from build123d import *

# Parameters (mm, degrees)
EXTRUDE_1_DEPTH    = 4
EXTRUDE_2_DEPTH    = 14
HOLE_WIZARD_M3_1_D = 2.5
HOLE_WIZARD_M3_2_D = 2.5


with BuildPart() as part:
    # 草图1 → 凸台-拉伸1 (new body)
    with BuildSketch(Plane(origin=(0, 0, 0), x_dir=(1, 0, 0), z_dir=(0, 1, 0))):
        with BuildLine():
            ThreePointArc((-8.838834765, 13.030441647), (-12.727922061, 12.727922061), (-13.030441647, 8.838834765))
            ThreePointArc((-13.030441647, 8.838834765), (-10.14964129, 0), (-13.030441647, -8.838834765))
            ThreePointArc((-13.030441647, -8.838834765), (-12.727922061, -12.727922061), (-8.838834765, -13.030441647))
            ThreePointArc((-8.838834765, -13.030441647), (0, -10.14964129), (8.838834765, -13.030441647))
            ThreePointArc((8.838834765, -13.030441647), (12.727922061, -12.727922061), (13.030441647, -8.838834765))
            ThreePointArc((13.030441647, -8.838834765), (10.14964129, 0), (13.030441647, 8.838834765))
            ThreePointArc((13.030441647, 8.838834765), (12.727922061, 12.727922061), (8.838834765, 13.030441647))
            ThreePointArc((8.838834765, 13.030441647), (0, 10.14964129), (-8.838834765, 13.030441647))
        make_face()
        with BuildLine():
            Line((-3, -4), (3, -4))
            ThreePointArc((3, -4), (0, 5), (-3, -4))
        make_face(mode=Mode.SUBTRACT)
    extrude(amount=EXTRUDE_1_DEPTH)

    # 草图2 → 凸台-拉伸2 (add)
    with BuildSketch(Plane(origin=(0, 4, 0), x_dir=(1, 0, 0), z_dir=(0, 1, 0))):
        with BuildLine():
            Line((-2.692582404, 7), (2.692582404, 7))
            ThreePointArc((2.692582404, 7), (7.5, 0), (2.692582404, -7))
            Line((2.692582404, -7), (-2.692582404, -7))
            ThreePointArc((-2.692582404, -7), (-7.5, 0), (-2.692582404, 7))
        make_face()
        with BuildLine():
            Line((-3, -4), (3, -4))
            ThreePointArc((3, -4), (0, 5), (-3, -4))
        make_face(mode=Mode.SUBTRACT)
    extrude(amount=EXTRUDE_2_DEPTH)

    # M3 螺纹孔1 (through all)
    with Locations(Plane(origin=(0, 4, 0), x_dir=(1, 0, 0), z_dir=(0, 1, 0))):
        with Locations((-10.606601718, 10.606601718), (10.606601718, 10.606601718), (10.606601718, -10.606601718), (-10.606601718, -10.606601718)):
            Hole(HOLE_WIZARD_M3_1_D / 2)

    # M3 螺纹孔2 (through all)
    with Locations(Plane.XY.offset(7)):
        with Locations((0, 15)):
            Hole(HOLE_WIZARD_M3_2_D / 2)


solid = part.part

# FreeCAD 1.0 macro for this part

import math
import FreeCAD as App
import Part
import Sketcher
from FreeCAD import Vector

doc = App.newDocument("Part")
params = doc.addObject("Spreadsheet::Sheet", "Params")
for row, (alias, value) in enumerate([
    ("sketch1_radius", "3 mm"),
    ("sketch1_radius2", "15 mm"),
    ("sketch1_radius3", "5 mm"),
    ("sketch1_width", "6 mm"),
    ("pad1_length", "4 mm"),
    ("sketch2_radius", "5 mm"),
    ("sketch2_radius2", "7.5 mm"),
    ("sketch2_width", "6 mm"),
    ("pad2_length", "14 mm"),
    ("sketch3_diameter", "2.5 mm"),
    ("hole_diameter", "2.5 mm"),
    ("sketch4_diameter", "2.5 mm"),
    ("hole2_diameter", "2.5 mm"),
], start=1):
    params.set(f"A{row}", alias)
    params.set(f"B{row}", "=" + value)
    params.setAlias(f"B{row}", alias)

body = doc.addObject("PartDesign::Body", "Body")

sketch1 = body.newObject("Sketcher::SketchObject", "Sketch")
sketch1.AttachmentSupport = (doc.getObject("XZ_Plane"), [""])
sketch1.MapMode = "FlatFace"
sketch1.addGeometry([
    Part.ArcOfCircle(Part.Circle(Vector(-10.606602, -10.606602, 0), Vector(0, 0, 1), 3), math.radians(143.895795), math.radians(306.104205)),
    Part.ArcOfCircle(Part.Circle(Vector(-25.149641, 0, 0), Vector(0, 0, 1), 15), math.radians(-36.104205), math.radians(36.104205)),
    Part.ArcOfCircle(Part.Circle(Vector(-10.606602, 10.606602, 0), Vector(0, 0, 1), 3), math.radians(53.895795), math.radians(216.104205)),
    Part.ArcOfCircle(Part.Circle(Vector(0, 25.149641, 0), Vector(0, 0, 1), 15), math.radians(-126.104205), math.radians(-53.895795)),
    Part.ArcOfCircle(Part.Circle(Vector(10.606602, 10.606602, 0), Vector(0, 0, 1), 3), math.radians(-36.104205), math.radians(126.104205)),
    Part.ArcOfCircle(Part.Circle(Vector(25.149641, 0, 0), Vector(0, 0, 1), 15), math.radians(143.895795), math.radians(216.104205)),
    Part.ArcOfCircle(Part.Circle(Vector(10.606602, -10.606602, 0), Vector(0, 0, 1), 3), math.radians(-126.104205), math.radians(36.104205)),
    Part.ArcOfCircle(Part.Circle(Vector(0, -25.149641, 0), Vector(0, 0, 1), 15), math.radians(53.895795), math.radians(126.104205)),
    Part.LineSegment(Vector(3, 4, 0), Vector(-3, 4, 0)),
    Part.ArcOfCircle(Part.Circle(Vector(0, 0, 0), Vector(0, 0, 1), 5), math.radians(126.869898), math.radians(413.130102)),
], False)
sketch1.addConstraint([
    Sketcher.Constraint("Tangent", 0, 1, 1, 1),
    Sketcher.Constraint("Tangent", 1, 2, 2, 2),
    Sketcher.Constraint("Tangent", 2, 1, 3, 1),
    Sketcher.Constraint("Tangent", 3, 2, 4, 2),
    Sketcher.Constraint("Tangent", 4, 1, 5, 1),
    Sketcher.Constraint("Tangent", 5, 2, 6, 2),
    Sketcher.Constraint("Tangent", 6, 1, 7, 1),
    Sketcher.Constraint("Tangent", 7, 2, 0, 2),
    Sketcher.Constraint("Coincident", 8, 1, 9, 2),
    Sketcher.Constraint("Coincident", 9, 1, 8, 2),
    Sketcher.Constraint("Horizontal", 8),
    Sketcher.Constraint("Coincident", 9, 3, -1, 1),
    Sketcher.Constraint("Equal", 0, 2),
    Sketcher.Constraint("Equal", 1, 3),
    Sketcher.Constraint("Equal", 2, 4),
    Sketcher.Constraint("Equal", 3, 5),
    Sketcher.Constraint("Equal", 4, 6),
    Sketcher.Constraint("Equal", 5, 7),
    Sketcher.Constraint("Symmetric", 0, 3, 4, 3, -1, 1),
    Sketcher.Constraint("Symmetric", 2, 3, 6, 3, -1, 1),
    Sketcher.Constraint("Symmetric", 2, 3, 4, 3, -2),
    Sketcher.Constraint("Radius", 0, 3.0),
    Sketcher.Constraint("Radius", 1, 15.0),
    Sketcher.Constraint("Radius", 9, 5.0),
    Sketcher.Constraint("DistanceX", 8, 2, 8, 1, 6.0),
    Sketcher.Constraint("DistanceX", 0, 3, -1, 1, 10.606602),
    Sketcher.Constraint("DistanceY", 0, 3, -1, 1, 10.606602),
])
sketch1.setExpression("Constraints[21]", "Params.sketch1_radius")
sketch1.setExpression("Constraints[22]", "Params.sketch1_radius2")
sketch1.setExpression("Constraints[23]", "Params.sketch1_radius3")
sketch1.setExpression("Constraints[24]", "Params.sketch1_width")
pad1 = body.newObject("PartDesign::Pad", "Pad")
pad1.Profile = sketch1
pad1.setExpression("Length", "Params.pad1_length")
pad1.Reversed = True

sketch2 = body.newObject("Sketcher::SketchObject", "Sketch001")
sketch2.AttachmentSupport = (doc.getObject("XZ_Plane"), [""])
sketch2.MapMode = "FlatFace"
sketch2.AttachmentOffset = App.Placement(Vector(0, 0, -4), App.Rotation())
sketch2.addGeometry([
    Part.LineSegment(Vector(2.692582, -7, 0), Vector(-2.692582, -7, 0)),
    Part.ArcOfCircle(Part.Circle(Vector(0, 0, 0), Vector(0, 0, 1), 7.5), math.radians(111.03947), math.radians(248.96053)),
    Part.LineSegment(Vector(-2.692582, 7, 0), Vector(2.692582, 7, 0)),
    Part.ArcOfCircle(Part.Circle(Vector(0, 0, 0), Vector(0, 0, 1), 7.5), math.radians(-68.96053), math.radians(68.96053)),
    Part.ArcOfCircle(Part.Circle(Vector(0, 0, 0), Vector(0, 0, 1), 5), math.radians(126.869898), math.radians(413.130102)),
    Part.LineSegment(Vector(3, 4, 0), Vector(-3, 4, 0)),
], False)
sketch2.addConstraint([
    Sketcher.Constraint("Coincident", 0, 2, 1, 2),
    Sketcher.Constraint("Coincident", 1, 1, 2, 1),
    Sketcher.Constraint("Coincident", 2, 2, 3, 2),
    Sketcher.Constraint("Coincident", 3, 1, 0, 1),
    Sketcher.Constraint("Coincident", 4, 1, 5, 2),
    Sketcher.Constraint("Coincident", 5, 1, 4, 2),
    Sketcher.Constraint("Horizontal", 0),
    Sketcher.Constraint("Horizontal", 2),
    Sketcher.Constraint("Horizontal", 5),
    Sketcher.Constraint("Coincident", 1, 3, -1, 1),
    Sketcher.Constraint("Coincident", 3, 3, -1, 1),
    Sketcher.Constraint("Coincident", 4, 3, -1, 1),
    Sketcher.Constraint("Equal", 1, 3),
    Sketcher.Constraint("Vertical", 0, 2, 1, 1),
    Sketcher.Constraint("Radius", 4, 5.0),
    Sketcher.Constraint("Radius", 1, 7.5),
    Sketcher.Constraint("DistanceX", 5, 2, 5, 1, 6.0),
    Sketcher.Constraint("DistanceY", 0, 2, -1, 1, 7.0),
])
sketch2.setExpression("Constraints[14]", "Params.sketch2_radius")
sketch2.setExpression("Constraints[15]", "Params.sketch2_radius2")
sketch2.setExpression("Constraints[16]", "Params.sketch2_width")
pad2 = body.newObject("PartDesign::Pad", "Pad001")
pad2.Profile = sketch2
pad2.setExpression("Length", "Params.pad2_length")
pad2.Reversed = True

sketch3 = body.newObject("Sketcher::SketchObject", "Sketch002")
sketch3.AttachmentSupport = (doc.getObject("XZ_Plane"), [""])
sketch3.MapMode = "FlatFace"
sketch3.AttachmentOffset = App.Placement(Vector(0, 0, -4), App.Rotation())
sketch3.addGeometry([
    Part.Circle(Vector(-10.606602, -10.606602, 0), Vector(0, 0, 1), 1.25),
    Part.Circle(Vector(10.606602, -10.606602, 0), Vector(0, 0, 1), 1.25),
    Part.Circle(Vector(10.606602, 10.606602, 0), Vector(0, 0, 1), 1.25),
    Part.Circle(Vector(-10.606602, 10.606602, 0), Vector(0, 0, 1), 1.25),
], False)
sketch3.addConstraint([
    Sketcher.Constraint("Equal", 0, 1),
    Sketcher.Constraint("Equal", 1, 2),
    Sketcher.Constraint("Equal", 2, 3),
    Sketcher.Constraint("Symmetric", 0, 3, 2, 3, -1, 1),
    Sketcher.Constraint("Symmetric", 1, 3, 3, 3, -1, 1),
    Sketcher.Constraint("Symmetric", 0, 3, 1, 3, -2),
    Sketcher.Constraint("Diameter", 0, 2.5),
    Sketcher.Constraint("DistanceX", 0, 3, -1, 1, 10.606602),
    Sketcher.Constraint("DistanceY", 0, 3, -1, 1, 10.606602),
])
sketch3.setExpression("Constraints[6]", "Params.sketch3_diameter")
doc.recompute()
hole = body.newObject("PartDesign::Hole", "Hole")
hole.Profile = sketch3
hole.ThreadType = "None"
hole.setExpression("Diameter", "Params.hole_diameter")
hole.DepthType = "ThroughAll"
hole.Reversed = True

sketch4 = body.newObject("Sketcher::SketchObject", "Sketch003")
sketch4.AttachmentSupport = (doc.getObject("XY_Plane"), [""])
sketch4.MapMode = "FlatFace"
sketch4.AttachmentOffset = App.Placement(Vector(0, 0, 7), App.Rotation())
sketch4.addGeometry(Part.Circle(Vector(0, 15, 0), Vector(0, 0, 1), 1.25), False)
sketch4.addConstraint([
    Sketcher.Constraint("PointOnObject", 0, 3, -2),
    Sketcher.Constraint("Diameter", 0, 2.5),
    Sketcher.Constraint("DistanceY", -1, 1, 0, 3, 15.0),
])
sketch4.setExpression("Constraints[1]", "Params.sketch4_diameter")
doc.recompute()
hole2 = body.newObject("PartDesign::Hole", "Hole001")
hole2.Profile = sketch4
hole2.ThreadType = "None"
hole2.setExpression("Diameter", "Params.hole2_diameter")
hole2.DepthType = "ThroughAll"

doc.recompute()
